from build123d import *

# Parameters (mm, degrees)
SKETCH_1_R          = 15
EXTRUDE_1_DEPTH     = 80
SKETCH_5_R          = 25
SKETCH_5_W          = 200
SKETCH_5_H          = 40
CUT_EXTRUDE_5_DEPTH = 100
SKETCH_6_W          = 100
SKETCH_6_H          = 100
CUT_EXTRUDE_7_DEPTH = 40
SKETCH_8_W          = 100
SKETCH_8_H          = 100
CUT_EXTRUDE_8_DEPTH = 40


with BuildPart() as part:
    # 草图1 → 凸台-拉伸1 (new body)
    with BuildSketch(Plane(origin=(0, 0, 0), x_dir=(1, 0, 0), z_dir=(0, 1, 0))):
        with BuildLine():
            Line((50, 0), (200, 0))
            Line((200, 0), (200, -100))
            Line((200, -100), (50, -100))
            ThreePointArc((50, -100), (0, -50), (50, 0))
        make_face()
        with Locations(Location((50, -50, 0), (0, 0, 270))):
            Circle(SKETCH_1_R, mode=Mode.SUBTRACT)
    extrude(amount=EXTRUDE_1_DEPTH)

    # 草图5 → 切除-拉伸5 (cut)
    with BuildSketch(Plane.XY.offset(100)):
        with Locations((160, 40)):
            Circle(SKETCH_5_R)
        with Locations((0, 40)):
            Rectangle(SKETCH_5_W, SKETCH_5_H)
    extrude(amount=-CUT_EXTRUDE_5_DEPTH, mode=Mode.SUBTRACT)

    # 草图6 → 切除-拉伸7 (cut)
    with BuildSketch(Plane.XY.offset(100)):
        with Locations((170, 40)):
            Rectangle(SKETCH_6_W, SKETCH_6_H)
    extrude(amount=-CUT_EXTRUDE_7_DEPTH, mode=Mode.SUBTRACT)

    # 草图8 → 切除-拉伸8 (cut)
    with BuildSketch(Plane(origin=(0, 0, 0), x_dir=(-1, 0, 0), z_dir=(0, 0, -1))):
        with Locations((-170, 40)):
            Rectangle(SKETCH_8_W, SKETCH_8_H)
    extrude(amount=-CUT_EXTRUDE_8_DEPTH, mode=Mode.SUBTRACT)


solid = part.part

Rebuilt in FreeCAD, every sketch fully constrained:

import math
import FreeCAD as App
import Part
import Sketcher
from FreeCAD import Vector
Q = App.Units.Quantity


def add_polygon(sketch, points):
    """Adds a closed chain of lines whose ends are joined by coincident constraints."""
    first, n = sketch.GeometryCount, len(points)
    for a, b in zip(points, points[1:] + points[:1]):
        sketch.addGeometry(Part.LineSegment(App.Vector(*a, 0), App.Vector(*b, 0)), False)
    for i in range(n):
        sketch.addConstraint(Sketcher.Constraint("Coincident", first + i, 2, first + (i + 1) % n, 1))

doc = App.newDocument("Part")
body = doc.addObject("PartDesign::Body", "Body")

sketch1 = body.newObject("Sketcher::SketchObject", "Sketch")
sketch1.AttachmentSupport = (doc.getObject("XZ_Plane"), [""])
sketch1.MapMode = "FlatFace"
sketch1.addGeometry([
    Part.LineSegment(Vector(200, 0, 0), Vector(50, 0, 0)),
    Part.ArcOfCircle(Part.Circle(Vector(50, 50, 0), Vector(0, 0, 1), 50), math.radians(90), math.radians(270)),
    Part.LineSegment(Vector(50, 100, 0), Vector(200, 100, 0)),
    Part.LineSegment(Vector(200, 100, 0), Vector(200, 0, 0)),
    Part.Circle(Vector(50, 50, 0), Vector(0, 0, 1), 15),
], False)
sketch1.addConstraint([
    Sketcher.Constraint("Tangent", 0, 2, 1, 2),
    Sketcher.Constraint("Tangent", 1, 1, 2, 1),
    Sketcher.Constraint("Coincident", 2, 2, 3, 1),
    Sketcher.Constraint("Coincident", 3, 2, 0, 1),
    Sketcher.Constraint("Horizontal", 0),
    Sketcher.Constraint("Horizontal", 2),
    Sketcher.Constraint("Vertical", 3),
    Sketcher.Constraint("Coincident", 4, 3, 1, 3),
    Sketcher.Constraint("PointOnObject", 0, 2, -1),
    Sketcher.Constraint("Diameter", 4, Q("30 mm")),
    Sketcher.Constraint("Radius", 1, Q("50 mm")),
    Sketcher.Constraint("DistanceX", 0, 2, 0, 1, Q("150 mm")),
    Sketcher.Constraint("DistanceX", -1, 1, 1, 3, Q("50 mm")),
])
pad1 = body.newObject("PartDesign::Pad", "Pad")
pad1.Profile = sketch1
pad1.Length = 80
pad1.Reversed = True

sketch2 = body.newObject("Sketcher::SketchObject", "Sketch001")
sketch2.AttachmentSupport = (doc.getObject("XY_Plane"), [""])
sketch2.MapMode = "FlatFace"
sketch2.AttachmentOffset = App.Placement(Vector(0, 0, 100), App.Rotation())
sketch2.addGeometry(Part.Circle(Vector(160, 40, 0), Vector(0, 0, 1), 25), False)
add_polygon(sketch2, [(-100, 60), (-100, 20), (100, 20), (100, 60)])
sketch2.addConstraint([
    Sketcher.Constraint("Vertical", 1),
    Sketcher.Constraint("Horizontal", 2),
    Sketcher.Constraint("Vertical", 3),
    Sketcher.Constraint("Horizontal", 4),
    Sketcher.Constraint("Diameter", 0, Q("50 mm")),
    Sketcher.Constraint("DistanceX", 2, 1, 2, 2, Q("200 mm")),
    Sketcher.Constraint("DistanceY", 1, 2, 1, 1, Q("40 mm")),
    Sketcher.Constraint("DistanceX", -1, 1, 0, 3, Q("160 mm")),
    Sketcher.Constraint("DistanceY", -1, 1, 0, 3, Q("40 mm")),
    Sketcher.Constraint("DistanceX", 1, 2, -1, 1, Q("100 mm")),
    Sketcher.Constraint("DistanceY", -1, 1, 1, 2, Q("20 mm")),
])
pocket1 = body.newObject("PartDesign::Pocket", "Pocket")
pocket1.Profile = sketch2
pocket1.Length = 100

sketch3 = body.newObject("Sketcher::SketchObject", "Sketch002")
sketch3.AttachmentSupport = (doc.getObject("XY_Plane"), [""])
sketch3.MapMode = "FlatFace"
sketch3.AttachmentOffset = App.Placement(Vector(0, 0, 100), App.Rotation())
add_polygon(sketch3, [(120, 90), (120, -10), (220, -10), (220, 90)])
sketch3.addConstraint([
    Sketcher.Constraint("Vertical", 0),
    Sketcher.Constraint("Horizontal", 1),
    Sketcher.Constraint("Vertical", 2),
    Sketcher.Constraint("Horizontal", 3),
    Sketcher.Constraint("Equal", 3, 0),
    Sketcher.Constraint("DistanceX", 1, 1, 1, 2, Q("100 mm")),
    Sketcher.Constraint("DistanceX", -1, 1, 0, 2, Q("120 mm")),
    Sketcher.Constraint("DistanceY", 0, 2, -1, 1, Q("10 mm")),
])
pocket2 = body.newObject("PartDesign::Pocket", "Pocket001")
pocket2.Profile = sketch3
pocket2.Length = 40

sketch4 = body.newObject("Sketcher::SketchObject", "Sketch003")
sketch4.AttachmentSupport = (doc.getObject("XY_Plane"), [""])
sketch4.MapMode = "FlatFace"
add_polygon(sketch4, [(220, 90), (220, -10), (120, -10), (120, 90)])
sketch4.addConstraint([
    Sketcher.Constraint("Vertical", 0),
    Sketcher.Constraint("Horizontal", 1),
    Sketcher.Constraint("Vertical", 2),
    Sketcher.Constraint("Horizontal", 3),
    Sketcher.Constraint("Equal", 3, 0),
    Sketcher.Constraint("DistanceX", 1, 2, 1, 1, Q("100 mm")),
    Sketcher.Constraint("DistanceX", -1, 1, 0, 2, Q("220 mm")),
    Sketcher.Constraint("DistanceY", 0, 2, -1, 1, Q("10 mm")),
])
pocket3 = body.newObject("PartDesign::Pocket", "Pocket002")
pocket3.Profile = sketch4
pocket3.Length = 40
pocket3.Reversed = True

doc.recompute()
